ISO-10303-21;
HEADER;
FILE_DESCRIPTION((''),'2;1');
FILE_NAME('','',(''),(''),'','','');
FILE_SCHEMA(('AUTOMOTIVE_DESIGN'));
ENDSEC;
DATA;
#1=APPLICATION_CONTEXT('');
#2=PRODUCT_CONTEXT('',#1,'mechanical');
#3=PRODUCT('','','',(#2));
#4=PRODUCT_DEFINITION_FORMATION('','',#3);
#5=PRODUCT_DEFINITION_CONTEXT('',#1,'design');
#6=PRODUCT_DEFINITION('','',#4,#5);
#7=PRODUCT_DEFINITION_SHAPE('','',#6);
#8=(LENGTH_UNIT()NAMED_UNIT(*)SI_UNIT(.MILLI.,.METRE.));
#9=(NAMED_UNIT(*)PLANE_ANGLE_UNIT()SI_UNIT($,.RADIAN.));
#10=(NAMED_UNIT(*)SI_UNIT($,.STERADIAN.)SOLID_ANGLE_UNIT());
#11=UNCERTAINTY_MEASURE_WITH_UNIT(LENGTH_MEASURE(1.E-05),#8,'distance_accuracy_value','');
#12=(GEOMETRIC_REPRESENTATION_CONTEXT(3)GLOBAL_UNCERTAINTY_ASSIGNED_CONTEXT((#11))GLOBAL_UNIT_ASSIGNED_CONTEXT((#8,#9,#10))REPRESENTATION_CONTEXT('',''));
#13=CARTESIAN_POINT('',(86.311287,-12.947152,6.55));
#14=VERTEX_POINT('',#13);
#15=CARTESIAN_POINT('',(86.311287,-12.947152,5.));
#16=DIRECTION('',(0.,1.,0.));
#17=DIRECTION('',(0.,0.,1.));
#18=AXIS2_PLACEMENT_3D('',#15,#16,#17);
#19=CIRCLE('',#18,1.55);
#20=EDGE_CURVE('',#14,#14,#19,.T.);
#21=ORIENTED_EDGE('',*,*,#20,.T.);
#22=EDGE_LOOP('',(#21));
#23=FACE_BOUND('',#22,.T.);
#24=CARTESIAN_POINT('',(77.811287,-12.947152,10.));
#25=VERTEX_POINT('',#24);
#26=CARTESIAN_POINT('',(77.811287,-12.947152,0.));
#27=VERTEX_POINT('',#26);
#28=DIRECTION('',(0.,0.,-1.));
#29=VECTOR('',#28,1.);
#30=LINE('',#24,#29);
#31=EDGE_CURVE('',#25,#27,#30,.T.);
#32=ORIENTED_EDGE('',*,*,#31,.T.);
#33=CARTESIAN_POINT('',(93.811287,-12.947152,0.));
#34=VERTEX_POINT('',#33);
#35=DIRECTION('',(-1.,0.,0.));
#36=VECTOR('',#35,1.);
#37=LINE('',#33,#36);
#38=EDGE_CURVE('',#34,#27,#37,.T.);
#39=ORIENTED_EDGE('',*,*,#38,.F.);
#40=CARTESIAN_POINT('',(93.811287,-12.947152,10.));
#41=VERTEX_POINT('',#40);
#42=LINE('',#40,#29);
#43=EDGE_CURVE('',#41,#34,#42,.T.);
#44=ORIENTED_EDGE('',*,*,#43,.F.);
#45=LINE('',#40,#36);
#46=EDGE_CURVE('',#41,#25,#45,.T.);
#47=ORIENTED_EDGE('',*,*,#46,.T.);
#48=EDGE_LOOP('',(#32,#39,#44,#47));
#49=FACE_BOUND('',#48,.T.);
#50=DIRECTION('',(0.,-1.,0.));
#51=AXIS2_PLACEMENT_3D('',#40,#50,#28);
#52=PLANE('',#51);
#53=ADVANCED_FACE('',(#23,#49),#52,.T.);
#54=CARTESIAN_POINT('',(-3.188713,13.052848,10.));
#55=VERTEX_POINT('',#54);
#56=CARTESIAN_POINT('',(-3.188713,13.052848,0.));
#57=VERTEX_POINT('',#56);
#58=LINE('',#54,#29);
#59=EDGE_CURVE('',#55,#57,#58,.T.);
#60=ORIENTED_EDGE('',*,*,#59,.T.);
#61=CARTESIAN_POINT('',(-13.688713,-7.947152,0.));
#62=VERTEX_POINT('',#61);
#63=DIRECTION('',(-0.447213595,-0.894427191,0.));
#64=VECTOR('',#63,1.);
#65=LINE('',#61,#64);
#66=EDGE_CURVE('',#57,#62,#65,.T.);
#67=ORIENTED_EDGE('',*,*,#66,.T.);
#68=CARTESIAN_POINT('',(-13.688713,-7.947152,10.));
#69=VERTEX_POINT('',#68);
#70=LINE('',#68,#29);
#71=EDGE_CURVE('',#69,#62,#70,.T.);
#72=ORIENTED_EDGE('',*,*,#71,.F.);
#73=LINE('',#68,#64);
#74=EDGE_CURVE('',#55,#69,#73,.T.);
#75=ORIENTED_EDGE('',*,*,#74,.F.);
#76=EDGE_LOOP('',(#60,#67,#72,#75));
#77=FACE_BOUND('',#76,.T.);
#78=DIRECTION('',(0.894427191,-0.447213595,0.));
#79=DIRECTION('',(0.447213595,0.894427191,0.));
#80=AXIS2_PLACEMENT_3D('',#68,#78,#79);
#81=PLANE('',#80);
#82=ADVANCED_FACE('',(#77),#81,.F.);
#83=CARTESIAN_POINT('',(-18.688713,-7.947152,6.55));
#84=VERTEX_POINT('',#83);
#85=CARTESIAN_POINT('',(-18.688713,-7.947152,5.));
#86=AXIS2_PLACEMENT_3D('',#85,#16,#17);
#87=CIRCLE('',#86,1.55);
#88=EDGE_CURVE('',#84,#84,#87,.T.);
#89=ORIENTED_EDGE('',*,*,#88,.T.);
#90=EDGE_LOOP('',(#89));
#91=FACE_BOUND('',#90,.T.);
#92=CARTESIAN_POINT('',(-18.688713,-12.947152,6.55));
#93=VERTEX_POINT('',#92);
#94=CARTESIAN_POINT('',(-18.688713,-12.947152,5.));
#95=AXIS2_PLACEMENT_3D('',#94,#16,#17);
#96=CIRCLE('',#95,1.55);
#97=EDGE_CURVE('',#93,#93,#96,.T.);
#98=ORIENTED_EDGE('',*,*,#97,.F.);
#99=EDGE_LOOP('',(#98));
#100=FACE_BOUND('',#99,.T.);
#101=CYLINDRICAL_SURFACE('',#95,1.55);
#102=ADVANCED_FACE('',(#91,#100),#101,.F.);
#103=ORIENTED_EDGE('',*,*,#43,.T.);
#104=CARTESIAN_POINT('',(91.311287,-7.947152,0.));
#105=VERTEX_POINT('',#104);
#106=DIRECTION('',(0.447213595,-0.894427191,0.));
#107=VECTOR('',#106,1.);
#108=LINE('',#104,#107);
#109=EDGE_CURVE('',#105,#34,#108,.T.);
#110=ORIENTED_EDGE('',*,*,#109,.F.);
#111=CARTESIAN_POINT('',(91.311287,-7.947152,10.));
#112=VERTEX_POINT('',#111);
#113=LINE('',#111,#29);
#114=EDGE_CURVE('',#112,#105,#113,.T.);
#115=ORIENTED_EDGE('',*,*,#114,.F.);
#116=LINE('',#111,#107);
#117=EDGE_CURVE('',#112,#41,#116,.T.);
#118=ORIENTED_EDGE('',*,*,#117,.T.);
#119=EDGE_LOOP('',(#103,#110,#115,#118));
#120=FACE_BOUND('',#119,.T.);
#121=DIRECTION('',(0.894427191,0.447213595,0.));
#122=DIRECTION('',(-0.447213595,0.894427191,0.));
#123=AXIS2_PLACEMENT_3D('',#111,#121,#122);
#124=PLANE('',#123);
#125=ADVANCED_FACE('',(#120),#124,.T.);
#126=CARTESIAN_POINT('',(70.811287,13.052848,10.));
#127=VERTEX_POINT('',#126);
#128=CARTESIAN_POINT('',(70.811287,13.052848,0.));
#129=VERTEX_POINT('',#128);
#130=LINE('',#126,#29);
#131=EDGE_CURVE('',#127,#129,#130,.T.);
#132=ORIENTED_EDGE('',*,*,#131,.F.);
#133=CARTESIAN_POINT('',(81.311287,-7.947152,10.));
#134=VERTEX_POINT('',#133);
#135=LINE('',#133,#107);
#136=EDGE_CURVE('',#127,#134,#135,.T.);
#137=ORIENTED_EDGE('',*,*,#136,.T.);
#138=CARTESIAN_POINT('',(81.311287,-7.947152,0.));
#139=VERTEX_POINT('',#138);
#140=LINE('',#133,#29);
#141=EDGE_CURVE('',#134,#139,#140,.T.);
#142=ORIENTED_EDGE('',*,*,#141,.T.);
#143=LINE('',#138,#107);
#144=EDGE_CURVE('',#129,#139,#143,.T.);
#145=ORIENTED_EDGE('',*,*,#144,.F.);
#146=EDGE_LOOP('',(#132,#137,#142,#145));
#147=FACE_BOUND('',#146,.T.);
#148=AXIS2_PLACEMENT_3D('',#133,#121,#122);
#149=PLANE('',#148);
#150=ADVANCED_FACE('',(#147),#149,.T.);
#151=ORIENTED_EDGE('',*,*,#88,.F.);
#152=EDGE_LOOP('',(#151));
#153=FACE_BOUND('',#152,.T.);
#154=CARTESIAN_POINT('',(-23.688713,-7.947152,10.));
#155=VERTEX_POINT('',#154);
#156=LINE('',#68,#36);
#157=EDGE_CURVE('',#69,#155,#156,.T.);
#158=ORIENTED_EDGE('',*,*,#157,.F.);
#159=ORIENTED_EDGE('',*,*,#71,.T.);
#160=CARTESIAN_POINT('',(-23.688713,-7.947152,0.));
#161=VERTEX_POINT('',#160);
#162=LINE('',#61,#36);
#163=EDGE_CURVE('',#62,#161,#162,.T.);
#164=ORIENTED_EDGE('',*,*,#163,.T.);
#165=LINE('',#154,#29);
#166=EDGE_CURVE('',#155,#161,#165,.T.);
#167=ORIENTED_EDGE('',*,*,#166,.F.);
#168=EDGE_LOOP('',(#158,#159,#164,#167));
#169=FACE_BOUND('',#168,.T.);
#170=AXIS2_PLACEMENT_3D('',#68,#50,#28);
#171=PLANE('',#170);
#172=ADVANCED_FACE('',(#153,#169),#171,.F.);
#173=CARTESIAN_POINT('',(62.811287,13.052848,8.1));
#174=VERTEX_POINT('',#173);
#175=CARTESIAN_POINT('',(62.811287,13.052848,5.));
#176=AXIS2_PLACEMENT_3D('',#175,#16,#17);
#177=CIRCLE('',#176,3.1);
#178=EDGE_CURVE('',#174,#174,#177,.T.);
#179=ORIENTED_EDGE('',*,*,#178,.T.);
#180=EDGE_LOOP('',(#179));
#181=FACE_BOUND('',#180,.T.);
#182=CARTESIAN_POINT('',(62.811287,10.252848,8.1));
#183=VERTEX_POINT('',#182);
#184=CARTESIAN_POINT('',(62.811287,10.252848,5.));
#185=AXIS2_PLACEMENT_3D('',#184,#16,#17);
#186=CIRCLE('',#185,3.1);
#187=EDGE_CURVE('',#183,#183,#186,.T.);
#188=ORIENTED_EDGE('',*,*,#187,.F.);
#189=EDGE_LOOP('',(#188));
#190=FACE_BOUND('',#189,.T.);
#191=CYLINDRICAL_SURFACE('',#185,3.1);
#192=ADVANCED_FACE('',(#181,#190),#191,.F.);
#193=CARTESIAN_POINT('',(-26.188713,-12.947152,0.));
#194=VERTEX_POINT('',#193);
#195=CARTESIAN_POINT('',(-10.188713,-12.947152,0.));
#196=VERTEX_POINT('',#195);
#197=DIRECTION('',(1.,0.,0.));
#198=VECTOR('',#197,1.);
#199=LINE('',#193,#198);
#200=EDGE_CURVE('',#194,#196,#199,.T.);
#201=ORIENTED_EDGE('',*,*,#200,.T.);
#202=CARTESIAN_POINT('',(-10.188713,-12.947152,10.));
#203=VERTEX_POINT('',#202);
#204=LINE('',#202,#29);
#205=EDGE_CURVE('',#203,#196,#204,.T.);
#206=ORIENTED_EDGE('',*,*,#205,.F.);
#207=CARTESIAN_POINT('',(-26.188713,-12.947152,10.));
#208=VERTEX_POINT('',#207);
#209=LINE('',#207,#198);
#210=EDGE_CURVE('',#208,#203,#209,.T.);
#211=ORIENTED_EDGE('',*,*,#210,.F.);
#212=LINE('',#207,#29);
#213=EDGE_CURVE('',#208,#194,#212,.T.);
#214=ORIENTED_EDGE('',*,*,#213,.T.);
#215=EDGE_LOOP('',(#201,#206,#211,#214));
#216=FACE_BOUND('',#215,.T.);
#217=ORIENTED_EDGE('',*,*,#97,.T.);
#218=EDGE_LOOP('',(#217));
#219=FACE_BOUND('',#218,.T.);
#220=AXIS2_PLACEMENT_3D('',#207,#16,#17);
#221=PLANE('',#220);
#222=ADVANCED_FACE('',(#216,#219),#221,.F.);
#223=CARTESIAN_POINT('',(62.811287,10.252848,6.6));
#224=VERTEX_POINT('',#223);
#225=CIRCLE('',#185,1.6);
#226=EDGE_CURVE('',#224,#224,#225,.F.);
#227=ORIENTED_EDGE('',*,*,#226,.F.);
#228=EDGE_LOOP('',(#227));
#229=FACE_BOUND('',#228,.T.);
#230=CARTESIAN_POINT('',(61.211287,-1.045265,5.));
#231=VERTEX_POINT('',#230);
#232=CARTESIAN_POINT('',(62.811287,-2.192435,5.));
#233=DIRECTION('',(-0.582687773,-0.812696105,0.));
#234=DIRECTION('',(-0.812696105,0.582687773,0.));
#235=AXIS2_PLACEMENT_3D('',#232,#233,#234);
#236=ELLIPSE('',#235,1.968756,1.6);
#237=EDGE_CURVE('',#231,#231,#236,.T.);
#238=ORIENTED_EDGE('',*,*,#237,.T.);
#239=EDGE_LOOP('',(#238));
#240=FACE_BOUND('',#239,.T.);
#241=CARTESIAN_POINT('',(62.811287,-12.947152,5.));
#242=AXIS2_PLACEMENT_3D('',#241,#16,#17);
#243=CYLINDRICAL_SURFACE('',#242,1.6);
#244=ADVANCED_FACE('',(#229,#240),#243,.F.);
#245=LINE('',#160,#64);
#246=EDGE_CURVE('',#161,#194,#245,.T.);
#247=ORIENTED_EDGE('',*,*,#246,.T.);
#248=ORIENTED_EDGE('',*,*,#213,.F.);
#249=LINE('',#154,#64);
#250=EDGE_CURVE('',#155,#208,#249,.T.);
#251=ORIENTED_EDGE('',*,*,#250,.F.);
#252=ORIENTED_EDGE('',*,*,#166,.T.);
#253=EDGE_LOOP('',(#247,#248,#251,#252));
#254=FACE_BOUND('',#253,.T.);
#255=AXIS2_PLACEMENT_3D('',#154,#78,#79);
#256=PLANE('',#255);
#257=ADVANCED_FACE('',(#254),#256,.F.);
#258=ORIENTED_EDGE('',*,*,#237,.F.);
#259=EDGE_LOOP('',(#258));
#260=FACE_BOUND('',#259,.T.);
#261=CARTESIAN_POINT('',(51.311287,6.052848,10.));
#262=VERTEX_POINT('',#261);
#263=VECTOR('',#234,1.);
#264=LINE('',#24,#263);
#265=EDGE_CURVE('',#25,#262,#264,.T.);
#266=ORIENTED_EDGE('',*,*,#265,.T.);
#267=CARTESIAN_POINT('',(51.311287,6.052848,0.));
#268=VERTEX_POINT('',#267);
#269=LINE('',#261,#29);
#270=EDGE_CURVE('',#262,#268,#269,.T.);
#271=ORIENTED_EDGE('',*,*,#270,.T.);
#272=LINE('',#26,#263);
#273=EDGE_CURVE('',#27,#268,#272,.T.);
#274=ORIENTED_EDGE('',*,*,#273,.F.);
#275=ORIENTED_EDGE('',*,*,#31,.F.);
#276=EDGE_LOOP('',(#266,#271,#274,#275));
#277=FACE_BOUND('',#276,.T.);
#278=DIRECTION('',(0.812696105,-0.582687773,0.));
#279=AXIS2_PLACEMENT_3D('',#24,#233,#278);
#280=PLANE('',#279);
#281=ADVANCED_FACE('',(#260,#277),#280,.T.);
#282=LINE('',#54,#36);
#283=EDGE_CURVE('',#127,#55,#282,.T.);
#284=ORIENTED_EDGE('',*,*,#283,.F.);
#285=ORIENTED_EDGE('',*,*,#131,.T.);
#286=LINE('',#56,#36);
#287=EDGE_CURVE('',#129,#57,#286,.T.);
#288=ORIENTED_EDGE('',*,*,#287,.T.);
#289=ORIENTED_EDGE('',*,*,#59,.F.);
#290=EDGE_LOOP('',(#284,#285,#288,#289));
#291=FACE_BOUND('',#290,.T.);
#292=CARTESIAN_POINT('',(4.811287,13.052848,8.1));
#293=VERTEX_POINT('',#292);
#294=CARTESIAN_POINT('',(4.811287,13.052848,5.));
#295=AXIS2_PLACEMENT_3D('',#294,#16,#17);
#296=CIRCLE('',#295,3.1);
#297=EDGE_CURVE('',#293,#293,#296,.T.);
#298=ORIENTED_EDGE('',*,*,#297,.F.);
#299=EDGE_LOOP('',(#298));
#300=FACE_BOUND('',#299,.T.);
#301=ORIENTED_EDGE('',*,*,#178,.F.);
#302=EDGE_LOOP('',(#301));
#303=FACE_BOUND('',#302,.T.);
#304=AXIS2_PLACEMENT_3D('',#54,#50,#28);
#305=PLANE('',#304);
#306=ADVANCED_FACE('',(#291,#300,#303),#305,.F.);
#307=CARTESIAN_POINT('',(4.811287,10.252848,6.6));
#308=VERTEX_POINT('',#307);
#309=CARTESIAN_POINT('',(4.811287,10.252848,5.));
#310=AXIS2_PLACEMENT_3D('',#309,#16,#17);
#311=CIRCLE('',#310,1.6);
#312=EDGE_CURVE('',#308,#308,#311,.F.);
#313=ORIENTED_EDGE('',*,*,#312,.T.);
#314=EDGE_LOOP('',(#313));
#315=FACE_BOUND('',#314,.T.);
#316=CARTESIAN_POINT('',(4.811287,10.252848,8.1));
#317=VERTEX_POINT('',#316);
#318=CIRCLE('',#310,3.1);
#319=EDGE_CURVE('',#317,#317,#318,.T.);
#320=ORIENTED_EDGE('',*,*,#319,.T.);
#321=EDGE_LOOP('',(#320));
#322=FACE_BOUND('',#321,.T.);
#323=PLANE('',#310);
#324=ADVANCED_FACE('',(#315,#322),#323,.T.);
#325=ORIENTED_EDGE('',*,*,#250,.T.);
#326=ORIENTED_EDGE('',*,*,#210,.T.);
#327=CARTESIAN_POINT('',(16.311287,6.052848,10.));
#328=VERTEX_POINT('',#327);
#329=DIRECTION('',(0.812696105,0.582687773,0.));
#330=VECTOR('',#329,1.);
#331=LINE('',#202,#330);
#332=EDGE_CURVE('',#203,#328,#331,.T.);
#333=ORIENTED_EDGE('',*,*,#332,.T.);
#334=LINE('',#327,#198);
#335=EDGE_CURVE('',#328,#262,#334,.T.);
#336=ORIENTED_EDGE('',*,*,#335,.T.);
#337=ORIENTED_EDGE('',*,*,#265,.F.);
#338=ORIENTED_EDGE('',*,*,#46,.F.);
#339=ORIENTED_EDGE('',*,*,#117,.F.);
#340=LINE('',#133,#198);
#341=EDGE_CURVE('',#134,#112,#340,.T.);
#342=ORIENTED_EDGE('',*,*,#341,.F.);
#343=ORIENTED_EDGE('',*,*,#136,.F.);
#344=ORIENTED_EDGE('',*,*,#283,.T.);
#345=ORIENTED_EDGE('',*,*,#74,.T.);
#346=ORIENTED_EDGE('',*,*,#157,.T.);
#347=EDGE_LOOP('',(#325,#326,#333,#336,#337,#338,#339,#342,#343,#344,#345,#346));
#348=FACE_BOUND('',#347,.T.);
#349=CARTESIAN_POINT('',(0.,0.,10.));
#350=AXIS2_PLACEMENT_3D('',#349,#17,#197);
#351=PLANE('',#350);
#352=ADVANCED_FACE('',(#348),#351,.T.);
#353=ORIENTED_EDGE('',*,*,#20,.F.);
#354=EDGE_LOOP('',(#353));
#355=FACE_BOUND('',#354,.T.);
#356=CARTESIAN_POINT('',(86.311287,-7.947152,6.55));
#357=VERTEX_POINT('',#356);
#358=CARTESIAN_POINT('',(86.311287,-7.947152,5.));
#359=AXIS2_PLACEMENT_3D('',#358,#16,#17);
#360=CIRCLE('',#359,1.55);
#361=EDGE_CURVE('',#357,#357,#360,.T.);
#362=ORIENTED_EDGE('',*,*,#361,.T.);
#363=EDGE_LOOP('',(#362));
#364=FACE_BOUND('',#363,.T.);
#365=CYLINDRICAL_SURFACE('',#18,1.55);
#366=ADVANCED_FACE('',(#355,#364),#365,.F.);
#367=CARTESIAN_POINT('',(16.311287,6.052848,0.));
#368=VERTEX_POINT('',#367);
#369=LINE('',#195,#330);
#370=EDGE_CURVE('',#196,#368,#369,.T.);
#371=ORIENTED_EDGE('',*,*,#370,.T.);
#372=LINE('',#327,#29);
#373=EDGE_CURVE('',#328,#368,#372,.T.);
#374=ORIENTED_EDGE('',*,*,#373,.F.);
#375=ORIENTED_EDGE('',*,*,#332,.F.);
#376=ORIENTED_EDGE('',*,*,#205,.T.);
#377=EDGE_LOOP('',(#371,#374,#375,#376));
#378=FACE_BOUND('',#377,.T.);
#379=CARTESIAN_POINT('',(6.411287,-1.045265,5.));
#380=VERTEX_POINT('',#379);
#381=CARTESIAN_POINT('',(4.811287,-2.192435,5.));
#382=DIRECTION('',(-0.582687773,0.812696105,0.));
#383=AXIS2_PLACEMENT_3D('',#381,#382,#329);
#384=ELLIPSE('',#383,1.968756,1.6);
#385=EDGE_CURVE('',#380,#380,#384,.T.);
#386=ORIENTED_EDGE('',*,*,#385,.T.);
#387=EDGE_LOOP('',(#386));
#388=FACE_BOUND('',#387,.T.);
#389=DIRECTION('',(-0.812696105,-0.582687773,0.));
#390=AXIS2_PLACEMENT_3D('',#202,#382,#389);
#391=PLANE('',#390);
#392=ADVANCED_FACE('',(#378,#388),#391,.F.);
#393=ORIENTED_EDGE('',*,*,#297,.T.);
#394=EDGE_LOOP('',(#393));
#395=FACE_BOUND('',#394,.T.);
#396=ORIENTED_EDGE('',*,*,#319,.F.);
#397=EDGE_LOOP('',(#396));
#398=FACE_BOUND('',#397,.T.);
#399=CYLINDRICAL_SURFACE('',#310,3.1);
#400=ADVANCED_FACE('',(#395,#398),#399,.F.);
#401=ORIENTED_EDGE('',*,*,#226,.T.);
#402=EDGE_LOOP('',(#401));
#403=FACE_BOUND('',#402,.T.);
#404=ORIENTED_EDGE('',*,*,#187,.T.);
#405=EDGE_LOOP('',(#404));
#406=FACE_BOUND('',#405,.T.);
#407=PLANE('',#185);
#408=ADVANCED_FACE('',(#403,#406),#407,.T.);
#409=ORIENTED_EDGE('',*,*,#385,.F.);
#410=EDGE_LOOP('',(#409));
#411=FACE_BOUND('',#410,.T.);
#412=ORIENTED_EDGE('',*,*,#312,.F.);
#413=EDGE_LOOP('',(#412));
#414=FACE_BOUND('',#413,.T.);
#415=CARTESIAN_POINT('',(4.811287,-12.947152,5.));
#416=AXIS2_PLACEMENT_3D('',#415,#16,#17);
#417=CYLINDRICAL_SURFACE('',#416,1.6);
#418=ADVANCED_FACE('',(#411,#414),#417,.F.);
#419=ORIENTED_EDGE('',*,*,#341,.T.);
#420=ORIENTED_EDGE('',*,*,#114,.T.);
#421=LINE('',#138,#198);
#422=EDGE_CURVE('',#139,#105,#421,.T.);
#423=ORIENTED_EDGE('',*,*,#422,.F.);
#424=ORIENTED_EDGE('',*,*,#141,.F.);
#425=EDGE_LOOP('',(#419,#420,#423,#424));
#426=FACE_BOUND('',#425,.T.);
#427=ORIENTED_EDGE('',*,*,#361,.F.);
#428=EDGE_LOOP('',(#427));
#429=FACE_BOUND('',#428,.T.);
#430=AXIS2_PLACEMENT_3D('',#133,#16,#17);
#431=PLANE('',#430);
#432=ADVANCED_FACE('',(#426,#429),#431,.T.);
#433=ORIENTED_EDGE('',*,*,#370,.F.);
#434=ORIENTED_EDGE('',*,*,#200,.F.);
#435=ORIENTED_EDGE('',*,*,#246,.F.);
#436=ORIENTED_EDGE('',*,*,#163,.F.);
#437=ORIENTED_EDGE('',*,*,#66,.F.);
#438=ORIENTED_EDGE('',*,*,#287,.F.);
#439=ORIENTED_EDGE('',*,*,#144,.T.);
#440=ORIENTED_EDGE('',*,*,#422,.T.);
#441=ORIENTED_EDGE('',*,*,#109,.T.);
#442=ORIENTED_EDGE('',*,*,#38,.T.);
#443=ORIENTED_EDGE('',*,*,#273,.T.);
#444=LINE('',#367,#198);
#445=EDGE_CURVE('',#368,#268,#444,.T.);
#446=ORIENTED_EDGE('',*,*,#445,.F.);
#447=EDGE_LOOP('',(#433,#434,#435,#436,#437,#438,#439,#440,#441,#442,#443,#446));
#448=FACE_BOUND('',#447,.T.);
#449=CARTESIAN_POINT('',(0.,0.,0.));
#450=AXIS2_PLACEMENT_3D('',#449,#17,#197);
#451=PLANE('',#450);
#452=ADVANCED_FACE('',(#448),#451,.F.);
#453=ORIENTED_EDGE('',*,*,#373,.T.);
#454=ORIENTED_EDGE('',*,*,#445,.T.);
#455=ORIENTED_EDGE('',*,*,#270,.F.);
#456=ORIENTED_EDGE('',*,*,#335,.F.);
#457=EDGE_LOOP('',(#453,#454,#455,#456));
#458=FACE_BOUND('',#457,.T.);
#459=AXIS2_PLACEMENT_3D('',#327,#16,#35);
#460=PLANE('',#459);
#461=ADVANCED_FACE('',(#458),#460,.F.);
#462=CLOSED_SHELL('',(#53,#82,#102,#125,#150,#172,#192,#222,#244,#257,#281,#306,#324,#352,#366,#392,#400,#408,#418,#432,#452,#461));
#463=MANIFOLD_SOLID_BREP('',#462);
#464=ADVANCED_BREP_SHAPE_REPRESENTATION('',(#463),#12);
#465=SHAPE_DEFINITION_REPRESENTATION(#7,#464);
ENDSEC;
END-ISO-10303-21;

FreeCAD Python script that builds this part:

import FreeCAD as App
import Part
import Sketcher

V = App.Vector


def add_polygon(sketch, points):
    """Adds a closed chain of lines whose ends are joined by coincident constraints."""
    first, n = sketch.GeometryCount, len(points)
    for a, b in zip(points, points[1:] + points[:1]):
        sketch.addGeometry(Part.LineSegment(App.Vector(*a, 0), App.Vector(*b, 0)), False)
    for i in range(n):
        sketch.addConstraint(Sketcher.Constraint("Coincident", first + i, 2, first + (i + 1) % n, 1))

doc = App.newDocument("Part")
body = doc.addObject("PartDesign::Body", "Body")

sketch1 = body.newObject("Sketcher::SketchObject", "Sketch")
sketch1.AttachmentSupport = (doc.getObject("XY_Plane"), [""])
sketch1.MapMode = "FlatFace"
add_polygon(sketch1, [(34, 13), (-3, 13), (-14, -8), (-24, -8), (-26, -13), (-10, -13), (16, 6), (34, 6)])
sketch1.addConstraint([
    Sketcher.Constraint("Horizontal", 0),
    Sketcher.Constraint("Horizontal", 2),
    Sketcher.Constraint("Horizontal", 4),
    Sketcher.Constraint("Horizontal", 6),
    Sketcher.Constraint("Vertical", 7),
    Sketcher.Constraint("Parallel", 1, 3),
    Sketcher.Constraint("DistanceX", 0, 2, 0, 1, 37.0),
    Sketcher.Constraint("DistanceX", 2, 2, 2, 1, 10.0),
    Sketcher.Constraint("DistanceX", 4, 1, 4, 2, 16.0),
    Sketcher.Constraint("DistanceY", 7, 1, 7, 2, 7.0),
    Sketcher.Constraint("DistanceX", 6, 1, 6, 2, 17.5),
    Sketcher.Constraint("DistanceY", 1, 2, 0, 2, 21.0),
    Sketcher.Constraint("DistanceY", 3, 2, 2, 2, 5.0),
    Sketcher.Constraint("DistanceX", 3, 2, 0, 2, 23.0),
    Sketcher.Constraint("DistanceY", -1, 1, 0, 2, 13.052848),
    Sketcher.Constraint("DistanceX", 0, 2, -1, 1, 3.188713),
])
pad1 = body.newObject("PartDesign::Pad", "Pad")
pad1.Profile = sketch1
pad1.Length = 10
doc.recompute()

datumplane = body.newObject("PartDesign::Plane", "DatumPlane")
datumplane.AttachmentSupport = (doc.getObject("YZ_Plane"), [""])
datumplane.MapMode = "FlatFace"
datumplane.AttachmentOffset = App.Placement(V(0, 0, 33.811287), App.Rotation())
mirrored = body.newObject("PartDesign::Mirrored", "Mirrored")
mirrored.Originals = [pad1]
mirrored.MirrorPlane = (datumplane, [""])
body.Tip = mirrored

sketch2 = body.newObject("Sketcher::SketchObject", "Sketch001")
sketch2.AttachmentSupport = (doc.getObject("XZ_Plane"), [""])
sketch2.MapMode = "FlatFace"
sketch2.AttachmentOffset = App.Placement(V(0, 0, -13.052848), App.Rotation())
sketch2.addGeometry([
    Part.Circle(V(4.8, 5, 0), V(0, 0, 1), 1.6),
    Part.Circle(V(62.8, 5, 0), V(0, 0, 1), 1.6),
], False)
sketch2.addConstraint([
    Sketcher.Constraint("Equal", 0, 1),
    Sketcher.Constraint("Horizontal", 0, 3, 1, 3),
    Sketcher.Constraint("Diameter", 0, 3.2),
    Sketcher.Constraint("DistanceY", -1, 1, 0, 3, 5.0),
    Sketcher.Constraint("DistanceX", 0, 3, 1, 3, 58.0),
    Sketcher.Constraint("DistanceX", -1, 1, 0, 3, 4.811287),
])
pocket1 = body.newObject("PartDesign::Pocket", "Pocket")
pocket1.Profile = sketch2
pocket1.Type = "ThroughAll"
pocket1.Reversed = True

sketch3 = body.newObject("Sketcher::SketchObject", "Sketch002")
sketch3.AttachmentSupport = (doc.getObject("XZ_Plane"), [""])
sketch3.MapMode = "FlatFace"
sketch3.AttachmentOffset = App.Placement(V(0, 0, -13.052848), App.Rotation())
sketch3.addGeometry([
    Part.Circle(V(4.8, 5, 0), V(0, 0, 1), 3.1),
    Part.Circle(V(62.8, 5, 0), V(0, 0, 1), 3.1),
], False)
sketch3.addConstraint([
    Sketcher.Constraint("Equal", 0, 1),
    Sketcher.Constraint("Horizontal", 0, 3, 1, 3),
    Sketcher.Constraint("Diameter", 0, 6.2),
    Sketcher.Constraint("DistanceY", -1, 1, 0, 3, 5.0),
    Sketcher.Constraint("DistanceX", 0, 3, 1, 3, 58.0),
    Sketcher.Constraint("DistanceX", -1, 1, 0, 3, 4.811287),
])
pocket2 = body.newObject("PartDesign::Pocket", "Pocket001")
pocket2.Profile = sketch3
pocket2.Length = 2.8
pocket2.Reversed = True

sketch4 = body.newObject("Sketcher::SketchObject", "Sketch003")
sketch4.AttachmentSupport = (doc.getObject("XZ_Plane"), [""])
sketch4.MapMode = "FlatFace"
sketch4.AttachmentOffset = App.Placement(V(0, 0, 7.947152), App.Rotation())
sketch4.addGeometry([
    Part.Circle(V(-18.7, 5, 0), V(0, 0, 1), 1.6),
    Part.Circle(V(86.3, 5, 0), V(0, 0, 1), 1.6),
], False)
sketch4.addConstraint([
    Sketcher.Constraint("Equal", 0, 1),
    Sketcher.Constraint("Horizontal", 0, 3, 1, 3),
    Sketcher.Constraint("Diameter", 0, 3.1),
    Sketcher.Constraint("DistanceY", -1, 1, 0, 3, 5.0),
    Sketcher.Constraint("DistanceX", 0, 3, 1, 3, 105.0),
    Sketcher.Constraint("DistanceX", 0, 3, -1, 1, 18.688713),
])
pocket3 = body.newObject("PartDesign::Pocket", "Pocket002")
pocket3.Profile = sketch4
pocket3.Type = "ThroughAll"
pocket3.Reversed = True

doc.recompute()
